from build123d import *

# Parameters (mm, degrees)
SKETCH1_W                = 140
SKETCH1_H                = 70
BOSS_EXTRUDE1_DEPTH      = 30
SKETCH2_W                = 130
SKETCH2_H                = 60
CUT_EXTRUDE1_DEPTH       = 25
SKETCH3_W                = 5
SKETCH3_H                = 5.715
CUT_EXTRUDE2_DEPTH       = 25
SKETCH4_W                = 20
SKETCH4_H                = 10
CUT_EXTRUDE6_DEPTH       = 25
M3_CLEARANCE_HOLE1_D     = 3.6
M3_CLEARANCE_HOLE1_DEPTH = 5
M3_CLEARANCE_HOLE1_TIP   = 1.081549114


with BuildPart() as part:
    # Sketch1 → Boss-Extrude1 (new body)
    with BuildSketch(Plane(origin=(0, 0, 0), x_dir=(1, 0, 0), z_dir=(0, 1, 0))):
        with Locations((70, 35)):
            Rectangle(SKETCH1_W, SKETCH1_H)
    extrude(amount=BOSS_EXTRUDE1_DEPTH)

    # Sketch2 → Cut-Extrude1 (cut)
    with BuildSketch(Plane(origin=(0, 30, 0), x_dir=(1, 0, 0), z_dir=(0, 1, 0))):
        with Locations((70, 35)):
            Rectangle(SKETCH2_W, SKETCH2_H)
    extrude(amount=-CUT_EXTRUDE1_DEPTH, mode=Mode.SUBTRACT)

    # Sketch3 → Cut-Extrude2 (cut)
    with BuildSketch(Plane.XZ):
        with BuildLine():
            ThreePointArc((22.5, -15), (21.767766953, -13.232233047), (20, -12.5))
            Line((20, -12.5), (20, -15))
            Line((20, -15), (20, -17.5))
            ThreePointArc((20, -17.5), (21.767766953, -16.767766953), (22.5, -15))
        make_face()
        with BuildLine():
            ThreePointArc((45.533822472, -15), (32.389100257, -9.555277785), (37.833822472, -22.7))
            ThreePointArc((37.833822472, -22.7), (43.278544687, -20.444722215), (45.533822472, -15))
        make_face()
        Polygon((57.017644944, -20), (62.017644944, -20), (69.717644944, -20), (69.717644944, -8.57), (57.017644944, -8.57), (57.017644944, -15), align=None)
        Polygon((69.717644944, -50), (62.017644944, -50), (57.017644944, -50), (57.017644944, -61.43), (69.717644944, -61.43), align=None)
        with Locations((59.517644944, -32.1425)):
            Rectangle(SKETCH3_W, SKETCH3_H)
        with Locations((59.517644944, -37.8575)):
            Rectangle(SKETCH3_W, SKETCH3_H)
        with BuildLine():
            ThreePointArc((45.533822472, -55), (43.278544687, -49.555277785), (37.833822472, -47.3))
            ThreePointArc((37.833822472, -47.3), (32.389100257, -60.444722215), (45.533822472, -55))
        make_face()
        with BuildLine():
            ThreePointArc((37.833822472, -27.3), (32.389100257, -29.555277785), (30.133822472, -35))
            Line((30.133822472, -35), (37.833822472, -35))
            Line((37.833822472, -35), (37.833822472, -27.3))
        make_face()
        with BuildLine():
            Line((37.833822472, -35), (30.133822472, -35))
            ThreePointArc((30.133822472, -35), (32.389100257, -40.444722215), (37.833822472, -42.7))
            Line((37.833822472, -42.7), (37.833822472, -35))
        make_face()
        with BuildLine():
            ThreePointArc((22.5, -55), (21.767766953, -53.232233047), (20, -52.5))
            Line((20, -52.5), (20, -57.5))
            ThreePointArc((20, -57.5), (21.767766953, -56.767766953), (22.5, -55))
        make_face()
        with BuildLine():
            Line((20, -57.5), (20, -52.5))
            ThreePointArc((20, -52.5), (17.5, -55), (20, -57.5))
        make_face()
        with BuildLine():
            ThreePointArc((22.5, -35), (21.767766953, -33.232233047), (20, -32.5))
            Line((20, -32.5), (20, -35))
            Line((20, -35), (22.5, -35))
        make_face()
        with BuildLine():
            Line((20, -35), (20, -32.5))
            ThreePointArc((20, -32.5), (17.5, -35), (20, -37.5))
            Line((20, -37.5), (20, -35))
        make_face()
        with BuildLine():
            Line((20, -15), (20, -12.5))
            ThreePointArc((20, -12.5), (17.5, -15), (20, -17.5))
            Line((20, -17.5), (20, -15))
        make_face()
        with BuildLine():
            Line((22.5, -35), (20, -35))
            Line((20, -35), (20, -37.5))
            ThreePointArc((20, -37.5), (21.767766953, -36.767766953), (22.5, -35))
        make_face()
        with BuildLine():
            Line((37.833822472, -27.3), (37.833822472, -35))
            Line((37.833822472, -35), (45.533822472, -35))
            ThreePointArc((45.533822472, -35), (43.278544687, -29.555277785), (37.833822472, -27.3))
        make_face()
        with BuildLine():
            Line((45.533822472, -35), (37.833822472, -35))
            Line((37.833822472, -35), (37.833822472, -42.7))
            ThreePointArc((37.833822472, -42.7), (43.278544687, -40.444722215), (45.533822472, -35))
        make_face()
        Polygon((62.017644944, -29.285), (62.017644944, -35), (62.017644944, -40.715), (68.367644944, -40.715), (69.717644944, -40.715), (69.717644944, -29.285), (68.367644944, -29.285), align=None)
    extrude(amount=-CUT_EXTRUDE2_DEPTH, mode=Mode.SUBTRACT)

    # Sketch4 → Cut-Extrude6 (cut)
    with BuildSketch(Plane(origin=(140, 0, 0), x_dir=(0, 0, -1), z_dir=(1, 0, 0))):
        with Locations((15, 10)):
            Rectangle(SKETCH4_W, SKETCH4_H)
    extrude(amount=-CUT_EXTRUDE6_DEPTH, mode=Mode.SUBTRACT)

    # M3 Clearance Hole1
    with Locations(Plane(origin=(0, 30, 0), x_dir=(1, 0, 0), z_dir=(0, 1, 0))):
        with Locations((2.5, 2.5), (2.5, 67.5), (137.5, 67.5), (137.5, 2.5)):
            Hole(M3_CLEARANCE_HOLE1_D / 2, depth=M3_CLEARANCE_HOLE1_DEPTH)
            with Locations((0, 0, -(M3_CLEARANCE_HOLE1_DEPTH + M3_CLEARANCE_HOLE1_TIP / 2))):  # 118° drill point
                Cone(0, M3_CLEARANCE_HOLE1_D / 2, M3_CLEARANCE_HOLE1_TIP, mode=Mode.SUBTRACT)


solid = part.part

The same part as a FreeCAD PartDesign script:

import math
import FreeCAD as App
import Part
import Sketcher
from FreeCAD import Vector


def add_polygon(sketch, points):
    """Adds a closed chain of lines whose ends are joined by coincident constraints."""
    first, n = sketch.GeometryCount, len(points)
    for a, b in zip(points, points[1:] + points[:1]):
        sketch.addGeometry(Part.LineSegment(App.Vector(*a, 0), App.Vector(*b, 0)), False)
    for i in range(n):
        sketch.addConstraint(Sketcher.Constraint("Coincident", first + i, 2, first + (i + 1) % n, 1))

doc = App.newDocument("Part")
body = doc.addObject("PartDesign::Body", "Body")

# Sketch on XZ plane
sketch1 = doc.addObject("Sketcher::SketchObject", "Sketch")
body.addObject(sketch1)
sketch1.AttachmentSupport = (doc.XZ_Plane, [""])
sketch1.MapMode = "FlatFace"
add_polygon(sketch1, [(0, -70), (0, 0), (140, 0), (140, -70)])  # lines 0-3
sketch1.addConstraint(Sketcher.Constraint("Vertical", 0))
sketch1.addConstraint(Sketcher.Constraint("Horizontal", 1))
sketch1.addConstraint(Sketcher.Constraint("Vertical", 2))
sketch1.addConstraint(Sketcher.Constraint("Horizontal", 3))
sketch1.addConstraint(Sketcher.Constraint("Coincident", 0, 2, -1, 1))
sketch1.addConstraint(Sketcher.Constraint("DistanceX", 1, 1, 1, 2, 140.0))
sketch1.addConstraint(Sketcher.Constraint("DistanceY", 0, 1, 0, 2, 70.0))
pad1 = doc.addObject("PartDesign::Pad", "Pad")
body.addObject(pad1)
pad1.Profile = sketch1
pad1.Length = 30
pad1.Reversed = True

# Sketch on XZ plane
sketch2 = doc.addObject("Sketcher::SketchObject", "Sketch001")
body.addObject(sketch2)
sketch2.AttachmentSupport = (doc.XZ_Plane, [""])
sketch2.MapMode = "FlatFace"
sketch2.AttachmentOffset = App.Placement(Vector(0, 0, -30), App.Rotation())
add_polygon(sketch2, [(5, -65), (5, -5), (135, -5), (135, -65)])  # lines 0-3
sketch2.addConstraint(Sketcher.Constraint("Vertical", 0))
sketch2.addConstraint(Sketcher.Constraint("Horizontal", 1))
sketch2.addConstraint(Sketcher.Constraint("Vertical", 2))
sketch2.addConstraint(Sketcher.Constraint("Horizontal", 3))
sketch2.addConstraint(Sketcher.Constraint("DistanceX", 1, 1, 1, 2, 130.0))
sketch2.addConstraint(Sketcher.Constraint("DistanceY", 0, 1, 0, 2, 60.0))
sketch2.addConstraint(Sketcher.Constraint("DistanceX", -1, 1, 0, 2, 5.0))
sketch2.addConstraint(Sketcher.Constraint("DistanceY", 0, 2, -1, 1, 5.0))
pocket1 = doc.addObject("PartDesign::Pocket", "Pocket")
body.addObject(pocket1)
pocket1.Profile = sketch2
pocket1.Length = 25
pocket1.Reversed = True

# Sketch on XZ plane
sketch3 = doc.addObject("Sketcher::SketchObject", "Sketch002")
body.addObject(sketch3)
sketch3.AttachmentSupport = (doc.XZ_Plane, [""])
sketch3.MapMode = "FlatFace"
sketch3.addGeometry(Part.ArcOfCircle(Part.Circle(Vector(20, -15, 0), Vector(0, 0, 1), 2.5), math.radians(0), math.radians(90)), False)  # 0
sketch3.addGeometry(Part.ArcOfCircle(Part.Circle(Vector(20, -15, 0), Vector(0, 0, 1), 2.5), math.radians(90), math.radians(270)), False)  # 1
sketch3.addGeometry(Part.ArcOfCircle(Part.Circle(Vector(20, -15, 0), Vector(0, 0, 1), 2.5), math.radians(-90), math.radians(0)), False)  # 2
sketch3.addGeometry(Part.ArcOfCircle(Part.Circle(Vector(37.833822, -15, 0), Vector(0, 0, 1), 7.7), math.radians(0), math.radians(270)), False)  # 3
sketch3.addGeometry(Part.ArcOfCircle(Part.Circle(Vector(37.833822, -15, 0), Vector(0, 0, 1), 7.7), math.radians(-90), math.radians(0)), False)  # 4
add_polygon(sketch3, [(57.017645, -20), (69.717645, -20), (69.717645, -8.57), (57.017645, -8.57)])  # lines 5-8
add_polygon(sketch3, [(69.717645, -50), (57.017645, -50), (57.017645, -61.43), (69.717645, -61.43)])  # lines 9-12
add_polygon(sketch3, [(57.017645, -29.285), (57.017645, -40.715), (69.717645, -40.715), (69.717645, -29.285)])  # lines 13-16
sketch3.addGeometry(Part.ArcOfCircle(Part.Circle(Vector(37.833822, -55, 0), Vector(0, 0, 1), 7.7), math.radians(0), math.radians(90)), False)  # 17
sketch3.addGeometry(Part.ArcOfCircle(Part.Circle(Vector(37.833822, -55, 0), Vector(0, 0, 1), 7.7), math.radians(90), math.radians(360)), False)  # 18
sketch3.addGeometry(Part.ArcOfCircle(Part.Circle(Vector(37.833822, -35, 0), Vector(0, 0, 1), 7.7), math.radians(90), math.radians(180)), False)  # 19
sketch3.addGeometry(Part.ArcOfCircle(Part.Circle(Vector(37.833822, -35, 0), Vector(0, 0, 1), 7.7), math.radians(180), math.radians(270)), False)  # 20
sketch3.addGeometry(Part.ArcOfCircle(Part.Circle(Vector(37.833822, -35, 0), Vector(0, 0, 1), 7.7), math.radians(-90), math.radians(0)), False)  # 21
sketch3.addGeometry(Part.ArcOfCircle(Part.Circle(Vector(37.833822, -35, 0), Vector(0, 0, 1), 7.7), math.radians(0), math.radians(90)), False)  # 22
sketch3.addGeometry(Part.ArcOfCircle(Part.Circle(Vector(20, -55, 0), Vector(0, 0, 1), 2.5), math.radians(0), math.radians(90)), False)  # 23
sketch3.addGeometry(Part.ArcOfCircle(Part.Circle(Vector(20, -55, 0), Vector(0, 0, 1), 2.5), math.radians(90), math.radians(270)), False)  # 24
sketch3.addGeometry(Part.ArcOfCircle(Part.Circle(Vector(20, -55, 0), Vector(0, 0, 1), 2.5), math.radians(-90), math.radians(0)), False)  # 25
sketch3.addGeometry(Part.ArcOfCircle(Part.Circle(Vector(20, -35, 0), Vector(0, 0, 1), 2.5), math.radians(0), math.radians(90)), False)  # 26
sketch3.addGeometry(Part.ArcOfCircle(Part.Circle(Vector(20, -35, 0), Vector(0, 0, 1), 2.5), math.radians(90), math.radians(270)), False)  # 27
sketch3.addGeometry(Part.ArcOfCircle(Part.Circle(Vector(20, -35, 0), Vector(0, 0, 1), 2.5), math.radians(-90), math.radians(0)), False)  # 28
sketch3.addConstraint(Sketcher.Constraint("Tangent", 0, 2, 1, 1))
sketch3.addConstraint(Sketcher.Constraint("Tangent", 1, 2, 2, 1))
sketch3.addConstraint(Sketcher.Constraint("Tangent", 2, 2, 0, 1))
sketch3.addConstraint(Sketcher.Constraint("Tangent", 3, 1, 4, 2))
sketch3.addConstraint(Sketcher.Constraint("Coincident", 4, 1, 3, 2))
sketch3.addConstraint(Sketcher.Constraint("Tangent", 17, 1, 18, 2))
sketch3.addConstraint(Sketcher.Constraint("Coincident", 18, 1, 17, 2))
sketch3.addConstraint(Sketcher.Constraint("Tangent", 19, 2, 20, 1))
sketch3.addConstraint(Sketcher.Constraint("Tangent", 20, 2, 21, 1))
sketch3.addConstraint(Sketcher.Constraint("Tangent", 21, 2, 22, 1))
sketch3.addConstraint(Sketcher.Constraint("Tangent", 22, 2, 19, 1))
sketch3.addConstraint(Sketcher.Constraint("Tangent", 23, 2, 24, 1))
sketch3.addConstraint(Sketcher.Constraint("Tangent", 24, 2, 25, 1))
sketch3.addConstraint(Sketcher.Constraint("Tangent", 25, 2, 23, 1))
sketch3.addConstraint(Sketcher.Constraint("Tangent", 26, 2, 27, 1))
sketch3.addConstraint(Sketcher.Constraint("Tangent", 27, 2, 28, 1))
sketch3.addConstraint(Sketcher.Constraint("Tangent", 28, 2, 26, 1))
sketch3.addConstraint(Sketcher.Constraint("Horizontal", 5))
sketch3.addConstraint(Sketcher.Constraint("Vertical", 6))
sketch3.addConstraint(Sketcher.Constraint("Horizontal", 7))
sketch3.addConstraint(Sketcher.Constraint("Vertical", 8))
sketch3.addConstraint(Sketcher.Constraint("Horizontal", 9))
sketch3.addConstraint(Sketcher.Constraint("Vertical", 10))
sketch3.addConstraint(Sketcher.Constraint("Horizontal", 11))
sketch3.addConstraint(Sketcher.Constraint("Vertical", 12))
sketch3.addConstraint(Sketcher.Constraint("Vertical", 13))
sketch3.addConstraint(Sketcher.Constraint("Horizontal", 14))
sketch3.addConstraint(Sketcher.Constraint("Vertical", 15))
sketch3.addConstraint(Sketcher.Constraint("Horizontal", 16))
sketch3.addConstraint(Sketcher.Constraint("Equal", 4, 17))
sketch3.addConstraint(Sketcher.Constraint("Equal", 18, 19))
sketch3.addConstraint(Sketcher.Constraint("Equal", 19, 20))
sketch3.addConstraint(Sketcher.Constraint("Equal", 2, 23))
sketch3.addConstraint(Sketcher.Constraint("Equal", 25, 26))
sketch3.addConstraint(Sketcher.Constraint("Horizontal", 2, 3, 3, 3))
sketch3.addConstraint(Sketcher.Constraint("Horizontal", 18, 3, 23, 3))
sketch3.addConstraint(Sketcher.Constraint("Horizontal", 22, 3, 26, 3))
sketch3.addConstraint(Sketcher.Constraint("Horizontal", 4, 3, 2, 2))
sketch3.addConstraint(Sketcher.Constraint("Horizontal", 2, 2, 3, 1))
sketch3.addConstraint(Sketcher.Constraint("Horizontal", 25, 3, 17, 1))
sketch3.addConstraint(Sketcher.Constraint("Horizontal", 28, 3, 19, 2))
sketch3.addConstraint(Sketcher.Constraint("Horizontal", 19, 2, 21, 2))
sketch3.addConstraint(Sketcher.Constraint("Horizontal", 17, 1, 25, 2))
sketch3.addConstraint(Sketcher.Constraint("Horizontal", 21, 2, 28, 2))
sketch3.addConstraint(Sketcher.Constraint("Vertical", 4, 3, 17, 3))
sketch3.addConstraint(Sketcher.Constraint("Vertical", 18, 3, 19, 3))
sketch3.addConstraint(Sketcher.Constraint("Vertical", 2, 3, 23, 3))
sketch3.addConstraint(Sketcher.Constraint("Vertical", 25, 3, 26, 3))
sketch3.addConstraint(Sketcher.Constraint("Vertical", 28, 3, 0, 2))
sketch3.addConstraint(Sketcher.Constraint("Vertical", 0, 2, 1, 2))
sketch3.addConstraint(Sketcher.Constraint("Vertical", 22, 3, 4, 1))
sketch3.addConstraint(Sketcher.Constraint("Vertical", 8, 2, 9, 2))
sketch3.addConstraint(Sketcher.Constraint("Vertical", 6, 2, 11, 2))
sketch3.addConstraint(Sketcher.Constraint("Vertical", 10, 2, 13, 2))
sketch3.addConstraint(Sketcher.Constraint("Vertical", 12, 2, 14, 2))
sketch3.addConstraint(Sketcher.Constraint("Vertical", 4, 1, 18, 1))
sketch3.addConstraint(Sketcher.Constraint("Vertical", 18, 1, 20, 2))
sketch3.addConstraint(Sketcher.Constraint("Vertical", 20, 2, 22, 2))
sketch3.addConstraint(Sketcher.Constraint("Vertical", 1, 2, 23, 2))
sketch3.addConstraint(Sketcher.Constraint("Vertical", 23, 2, 24, 2))
sketch3.addConstraint(Sketcher.Constraint("Vertical", 24, 2, 26, 2))
sketch3.addConstraint(Sketcher.Constraint("Vertical", 26, 2, 27, 2))
sketch3.addConstraint(Sketcher.Constraint("Equal", 8, 10))
sketch3.addConstraint(Sketcher.Constraint("Equal", 12, 13))
sketch3.addConstraint(Sketcher.Constraint("Radius", 0, 2.5))
sketch3.addConstraint(Sketcher.Constraint("Radius", 3, 7.7))
sketch3.addConstraint(Sketcher.Constraint("DistanceX", 5, 1, 5, 2, 12.7))
sketch3.addConstraint(Sketcher.Constraint("DistanceX", -1, 1, 0, 3, 20.0))
sketch3.addConstraint(Sketcher.Constraint("DistanceY", 0, 3, -1, 1, 15.0))
sketch3.addConstraint(Sketcher.Constraint("DistanceY", 17, 3, -1, 1, 55.0))
sketch3.addConstraint(Sketcher.Constraint("DistanceY", 19, 3, -1, 1, 35.0))
sketch3.addConstraint(Sketcher.Constraint("DistanceY", 5, 2, -1, 1, 20.0))
sketch3.addConstraint(Sketcher.Constraint("DistanceY", 9, 2, -1, 1, 50.0))
sketch3.addConstraint(Sketcher.Constraint("DistanceY", 6, 1, 6, 2, 11.43))
sketch3.addConstraint(Sketcher.Constraint("DistanceY", 13, 2, -1, 1, 40.715))
sketch3.addConstraint(Sketcher.Constraint("DistanceX", -1, 1, 3, 3, 37.833822))
sketch3.addConstraint(Sketcher.Constraint("DistanceX", -1, 1, 5, 2, 69.717645))
pocket2 = doc.addObject("PartDesign::Pocket", "Pocket001")
body.addObject(pocket2)
pocket2.Profile = sketch3
pocket2.Length = 25

# Sketch on YZ plane
sketch4 = doc.addObject("Sketcher::SketchObject", "Sketch003")
body.addObject(sketch4)
sketch4.AttachmentSupport = (doc.YZ_Plane, [""])
sketch4.MapMode = "FlatFace"
sketch4.AttachmentOffset = App.Placement(Vector(0, 0, 140), App.Rotation())
add_polygon(sketch4, [(15, -5), (5, -5), (5, -25), (15, -25)])  # lines 0-3
sketch4.addConstraint(Sketcher.Constraint("Horizontal", 0))
sketch4.addConstraint(Sketcher.Constraint("Vertical", 1))
sketch4.addConstraint(Sketcher.Constraint("Horizontal", 2))
sketch4.addConstraint(Sketcher.Constraint("Vertical", 3))
sketch4.addConstraint(Sketcher.Constraint("DistanceX", 0, 2, 0, 1, 10.0))
sketch4.addConstraint(Sketcher.Constraint("DistanceY", 1, 2, 1, 1, 20.0))
sketch4.addConstraint(Sketcher.Constraint("DistanceX", -1, 1, 0, 2, 5.0))
sketch4.addConstraint(Sketcher.Constraint("DistanceY", 0, 2, -1, 1, 5.0))
pocket3 = doc.addObject("PartDesign::Pocket", "Pocket002")
body.addObject(pocket3)
pocket3.Profile = sketch4
pocket3.Length = 25

# Sketch on XZ plane
sketch5 = doc.addObject("Sketcher::SketchObject", "Sketch004")
body.addObject(sketch5)
sketch5.AttachmentSupport = (doc.XZ_Plane, [""])
sketch5.MapMode = "FlatFace"
sketch5.AttachmentOffset = App.Placement(Vector(0, 0, -30), App.Rotation())
sketch5.addGeometry(Part.Circle(Vector(2.5, -2.5, 0), Vector(0, 0, 1), 1.8), False)
sketch5.addGeometry(Part.Circle(Vector(2.5, -67.5, 0), Vector(0, 0, 1), 1.8), False)
sketch5.addGeometry(Part.Circle(Vector(137.5, -67.5, 0), Vector(0, 0, 1), 1.8), False)
sketch5.addGeometry(Part.Circle(Vector(137.5, -2.5, 0), Vector(0, 0, 1), 1.8), False)
sketch5.addConstraint(Sketcher.Constraint("Equal", 0, 1))
sketch5.addConstraint(Sketcher.Constraint("Equal", 1, 2))
sketch5.addConstraint(Sketcher.Constraint("Equal", 2, 3))
sketch5.addConstraint(Sketcher.Constraint("Horizontal", 1, 3, 2, 3))
sketch5.addConstraint(Sketcher.Constraint("Horizontal", 0, 3, 3, 3))
sketch5.addConstraint(Sketcher.Constraint("Vertical", 0, 3, 1, 3))
sketch5.addConstraint(Sketcher.Constraint("Vertical", 2, 3, 3, 3))
sketch5.addConstraint(Sketcher.Constraint("Diameter", 0, 3.6))
sketch5.addConstraint(Sketcher.Constraint("DistanceY", 1, 3, 0, 3, 65.0))
sketch5.addConstraint(Sketcher.Constraint("DistanceX", 1, 3, 2, 3, 135.0))
sketch5.addConstraint(Sketcher.Constraint("DistanceX", -1, 1, 0, 3, 2.5))
sketch5.addConstraint(Sketcher.Constraint("DistanceY", 0, 3, -1, 1, 2.5))
doc.recompute()
hole = doc.addObject("PartDesign::Hole", "Hole")
body.addObject(hole)
hole.Profile = sketch5
hole.ThreadType = "None"
hole.Diameter = 3.6
hole.DepthType = "Dimension"
hole.Depth = 5
hole.DrillPoint = "Angled"
hole.DrillPointAngle = 118
hole.Reversed = True

doc.recompute()
